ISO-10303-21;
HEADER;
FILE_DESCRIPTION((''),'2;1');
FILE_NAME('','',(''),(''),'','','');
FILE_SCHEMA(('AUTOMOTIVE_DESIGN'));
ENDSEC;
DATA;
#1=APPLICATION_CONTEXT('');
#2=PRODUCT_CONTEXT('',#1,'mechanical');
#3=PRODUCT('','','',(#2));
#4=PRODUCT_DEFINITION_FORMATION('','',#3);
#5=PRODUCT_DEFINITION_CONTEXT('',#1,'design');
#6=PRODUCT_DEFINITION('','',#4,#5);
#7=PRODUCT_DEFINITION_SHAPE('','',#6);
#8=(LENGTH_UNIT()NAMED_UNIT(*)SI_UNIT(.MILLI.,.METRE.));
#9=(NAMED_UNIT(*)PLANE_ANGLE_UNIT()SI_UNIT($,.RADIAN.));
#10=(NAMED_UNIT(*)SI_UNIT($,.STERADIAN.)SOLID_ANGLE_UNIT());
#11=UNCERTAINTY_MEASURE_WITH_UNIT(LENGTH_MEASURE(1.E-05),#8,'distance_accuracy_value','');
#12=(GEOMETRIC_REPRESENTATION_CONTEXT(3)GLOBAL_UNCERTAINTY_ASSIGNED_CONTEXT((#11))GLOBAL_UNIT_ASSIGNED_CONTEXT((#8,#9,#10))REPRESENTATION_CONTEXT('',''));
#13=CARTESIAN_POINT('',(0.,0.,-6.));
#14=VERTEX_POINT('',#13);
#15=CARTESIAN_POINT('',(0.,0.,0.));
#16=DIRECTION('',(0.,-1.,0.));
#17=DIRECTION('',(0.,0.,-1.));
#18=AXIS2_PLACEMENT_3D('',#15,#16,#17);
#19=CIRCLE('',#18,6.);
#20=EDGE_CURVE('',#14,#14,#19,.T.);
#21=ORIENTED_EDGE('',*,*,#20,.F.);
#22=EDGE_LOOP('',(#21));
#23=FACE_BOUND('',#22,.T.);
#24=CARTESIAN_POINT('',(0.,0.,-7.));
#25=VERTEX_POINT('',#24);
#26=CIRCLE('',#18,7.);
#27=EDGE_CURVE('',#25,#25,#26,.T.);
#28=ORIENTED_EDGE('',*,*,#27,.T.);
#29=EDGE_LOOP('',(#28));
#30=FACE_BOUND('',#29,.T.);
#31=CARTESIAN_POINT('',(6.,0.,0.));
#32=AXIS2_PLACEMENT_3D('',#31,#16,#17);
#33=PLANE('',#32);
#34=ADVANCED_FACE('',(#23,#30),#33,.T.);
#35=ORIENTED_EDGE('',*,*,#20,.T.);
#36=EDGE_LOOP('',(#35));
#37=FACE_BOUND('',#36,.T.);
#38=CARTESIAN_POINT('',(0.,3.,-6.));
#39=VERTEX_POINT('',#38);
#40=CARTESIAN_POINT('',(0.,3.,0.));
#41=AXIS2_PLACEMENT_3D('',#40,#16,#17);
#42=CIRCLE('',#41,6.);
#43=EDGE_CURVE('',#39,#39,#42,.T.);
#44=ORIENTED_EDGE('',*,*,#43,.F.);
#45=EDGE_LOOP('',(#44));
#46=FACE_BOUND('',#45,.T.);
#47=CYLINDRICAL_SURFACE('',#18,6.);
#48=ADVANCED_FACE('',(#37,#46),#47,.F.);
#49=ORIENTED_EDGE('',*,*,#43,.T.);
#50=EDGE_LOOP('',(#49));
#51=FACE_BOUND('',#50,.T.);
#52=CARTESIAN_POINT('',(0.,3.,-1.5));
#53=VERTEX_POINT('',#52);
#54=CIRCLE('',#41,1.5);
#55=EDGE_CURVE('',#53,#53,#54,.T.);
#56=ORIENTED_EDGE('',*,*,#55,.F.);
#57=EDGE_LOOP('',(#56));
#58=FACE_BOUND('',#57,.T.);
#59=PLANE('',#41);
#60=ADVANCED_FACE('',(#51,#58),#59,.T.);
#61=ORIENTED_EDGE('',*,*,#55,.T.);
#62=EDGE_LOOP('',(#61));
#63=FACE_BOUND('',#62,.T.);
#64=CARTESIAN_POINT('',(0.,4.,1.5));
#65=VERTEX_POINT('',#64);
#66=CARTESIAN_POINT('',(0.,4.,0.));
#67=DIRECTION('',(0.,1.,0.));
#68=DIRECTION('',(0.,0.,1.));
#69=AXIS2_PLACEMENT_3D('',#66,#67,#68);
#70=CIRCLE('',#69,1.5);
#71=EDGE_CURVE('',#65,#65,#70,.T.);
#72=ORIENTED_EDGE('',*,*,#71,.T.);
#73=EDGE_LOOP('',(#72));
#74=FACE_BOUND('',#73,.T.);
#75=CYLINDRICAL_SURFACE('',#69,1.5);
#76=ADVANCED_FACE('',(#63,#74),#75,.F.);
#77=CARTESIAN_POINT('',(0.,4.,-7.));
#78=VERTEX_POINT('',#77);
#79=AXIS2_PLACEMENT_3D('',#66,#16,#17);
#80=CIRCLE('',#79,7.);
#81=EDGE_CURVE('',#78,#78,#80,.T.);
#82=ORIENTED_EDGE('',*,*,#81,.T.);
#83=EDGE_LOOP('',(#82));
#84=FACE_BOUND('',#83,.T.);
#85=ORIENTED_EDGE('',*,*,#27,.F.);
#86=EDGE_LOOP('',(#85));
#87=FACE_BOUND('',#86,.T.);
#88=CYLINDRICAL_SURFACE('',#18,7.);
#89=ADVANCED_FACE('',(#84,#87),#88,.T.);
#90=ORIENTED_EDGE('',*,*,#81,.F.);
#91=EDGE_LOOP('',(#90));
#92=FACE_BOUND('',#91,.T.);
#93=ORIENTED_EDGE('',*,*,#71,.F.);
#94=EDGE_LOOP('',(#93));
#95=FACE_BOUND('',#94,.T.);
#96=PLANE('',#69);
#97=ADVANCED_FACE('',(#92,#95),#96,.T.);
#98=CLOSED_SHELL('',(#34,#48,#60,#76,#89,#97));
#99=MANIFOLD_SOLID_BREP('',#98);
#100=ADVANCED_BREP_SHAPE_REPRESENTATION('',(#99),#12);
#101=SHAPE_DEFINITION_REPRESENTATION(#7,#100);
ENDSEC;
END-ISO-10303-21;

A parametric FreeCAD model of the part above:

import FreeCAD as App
import Part
import Sketcher
from FreeCAD import Vector
Q = App.Units.Quantity


def add_polygon(sketch, points):
    """Adds a closed chain of lines whose ends are joined by coincident constraints."""
    first, n = sketch.GeometryCount, len(points)
    for a, b in zip(points, points[1:] + points[:1]):
        sketch.addGeometry(Part.LineSegment(App.Vector(*a, 0), App.Vector(*b, 0)), False)
    for i in range(n):
        sketch.addConstraint(Sketcher.Constraint("Coincident", first + i, 2, first + (i + 1) % n, 1))

doc = App.newDocument("Part")
body = doc.addObject("PartDesign::Body", "Body")

# Sketch on XY plane
sketch1 = doc.addObject("Sketcher::SketchObject", "Sketch")
body.addObject(sketch1)
sketch1.AttachmentSupport = (doc.XY_Plane, [""])
sketch1.MapMode = "FlatFace"
add_polygon(sketch1, [(0, 3), (6, 3), (6, 0), (7, 0), (7, 4), (0, 4)])  # lines 0-5
sketch1.addConstraint(Sketcher.Constraint("Horizontal", 0))
sketch1.addConstraint(Sketcher.Constraint("Vertical", 1))
sketch1.addConstraint(Sketcher.Constraint("Horizontal", 2))
sketch1.addConstraint(Sketcher.Constraint("Vertical", 3))
sketch1.addConstraint(Sketcher.Constraint("Horizontal", 4))
sketch1.addConstraint(Sketcher.Constraint("Vertical", 5))
sketch1.addConstraint(Sketcher.Constraint("PointOnObject", 1, 2, -1))
sketch1.addConstraint(Sketcher.Constraint("PointOnObject", 4, 2, -2))
sketch1.addConstraint(Sketcher.Constraint("Equal", 2, 5))
sketch1.addConstraint(Sketcher.Constraint("DistanceX", 0, 1, 0, 2, Q("6 mm")))
sketch1.addConstraint(Sketcher.Constraint("DistanceX", 2, 1, 2, 2, Q("1 mm")))
sketch1.addConstraint(Sketcher.Constraint("DistanceY", 1, 2, 1, 1, Q("3 mm")))
revolution = doc.addObject("PartDesign::Revolution", "Revolution")
body.addObject(revolution)
revolution.Profile = sketch1
revolution.ReferenceAxis = (sketch1, ["V_Axis"])
revolution.Angle = 360

# Sketch on XZ plane
sketch2 = doc.addObject("Sketcher::SketchObject", "Sketch001")
body.addObject(sketch2)
sketch2.AttachmentSupport = (doc.XZ_Plane, [""])
sketch2.MapMode = "FlatFace"
sketch2.AttachmentOffset = App.Placement(Vector(0, 0, -4), App.Rotation())
sketch2.addGeometry(Part.Circle(Vector(0, 0, 0), Vector(0, 0, 1), 1.5), False)
sketch2.addConstraint(Sketcher.Constraint("Coincident", 0, 3, -1, 1))
sketch2.addConstraint(Sketcher.Constraint("Diameter", 0, Q("3 mm")))
doc.recompute()
hole = doc.addObject("PartDesign::Hole", "Hole")
body.addObject(hole)
hole.Profile = sketch2
hole.ThreadType = "None"
hole.Diameter = 3
hole.DepthType = "Dimension"
hole.Depth = 7.598709
hole.DrillPoint = "Angled"
hole.DrillPointAngle = 118
hole.Reversed = True

doc.recompute()
